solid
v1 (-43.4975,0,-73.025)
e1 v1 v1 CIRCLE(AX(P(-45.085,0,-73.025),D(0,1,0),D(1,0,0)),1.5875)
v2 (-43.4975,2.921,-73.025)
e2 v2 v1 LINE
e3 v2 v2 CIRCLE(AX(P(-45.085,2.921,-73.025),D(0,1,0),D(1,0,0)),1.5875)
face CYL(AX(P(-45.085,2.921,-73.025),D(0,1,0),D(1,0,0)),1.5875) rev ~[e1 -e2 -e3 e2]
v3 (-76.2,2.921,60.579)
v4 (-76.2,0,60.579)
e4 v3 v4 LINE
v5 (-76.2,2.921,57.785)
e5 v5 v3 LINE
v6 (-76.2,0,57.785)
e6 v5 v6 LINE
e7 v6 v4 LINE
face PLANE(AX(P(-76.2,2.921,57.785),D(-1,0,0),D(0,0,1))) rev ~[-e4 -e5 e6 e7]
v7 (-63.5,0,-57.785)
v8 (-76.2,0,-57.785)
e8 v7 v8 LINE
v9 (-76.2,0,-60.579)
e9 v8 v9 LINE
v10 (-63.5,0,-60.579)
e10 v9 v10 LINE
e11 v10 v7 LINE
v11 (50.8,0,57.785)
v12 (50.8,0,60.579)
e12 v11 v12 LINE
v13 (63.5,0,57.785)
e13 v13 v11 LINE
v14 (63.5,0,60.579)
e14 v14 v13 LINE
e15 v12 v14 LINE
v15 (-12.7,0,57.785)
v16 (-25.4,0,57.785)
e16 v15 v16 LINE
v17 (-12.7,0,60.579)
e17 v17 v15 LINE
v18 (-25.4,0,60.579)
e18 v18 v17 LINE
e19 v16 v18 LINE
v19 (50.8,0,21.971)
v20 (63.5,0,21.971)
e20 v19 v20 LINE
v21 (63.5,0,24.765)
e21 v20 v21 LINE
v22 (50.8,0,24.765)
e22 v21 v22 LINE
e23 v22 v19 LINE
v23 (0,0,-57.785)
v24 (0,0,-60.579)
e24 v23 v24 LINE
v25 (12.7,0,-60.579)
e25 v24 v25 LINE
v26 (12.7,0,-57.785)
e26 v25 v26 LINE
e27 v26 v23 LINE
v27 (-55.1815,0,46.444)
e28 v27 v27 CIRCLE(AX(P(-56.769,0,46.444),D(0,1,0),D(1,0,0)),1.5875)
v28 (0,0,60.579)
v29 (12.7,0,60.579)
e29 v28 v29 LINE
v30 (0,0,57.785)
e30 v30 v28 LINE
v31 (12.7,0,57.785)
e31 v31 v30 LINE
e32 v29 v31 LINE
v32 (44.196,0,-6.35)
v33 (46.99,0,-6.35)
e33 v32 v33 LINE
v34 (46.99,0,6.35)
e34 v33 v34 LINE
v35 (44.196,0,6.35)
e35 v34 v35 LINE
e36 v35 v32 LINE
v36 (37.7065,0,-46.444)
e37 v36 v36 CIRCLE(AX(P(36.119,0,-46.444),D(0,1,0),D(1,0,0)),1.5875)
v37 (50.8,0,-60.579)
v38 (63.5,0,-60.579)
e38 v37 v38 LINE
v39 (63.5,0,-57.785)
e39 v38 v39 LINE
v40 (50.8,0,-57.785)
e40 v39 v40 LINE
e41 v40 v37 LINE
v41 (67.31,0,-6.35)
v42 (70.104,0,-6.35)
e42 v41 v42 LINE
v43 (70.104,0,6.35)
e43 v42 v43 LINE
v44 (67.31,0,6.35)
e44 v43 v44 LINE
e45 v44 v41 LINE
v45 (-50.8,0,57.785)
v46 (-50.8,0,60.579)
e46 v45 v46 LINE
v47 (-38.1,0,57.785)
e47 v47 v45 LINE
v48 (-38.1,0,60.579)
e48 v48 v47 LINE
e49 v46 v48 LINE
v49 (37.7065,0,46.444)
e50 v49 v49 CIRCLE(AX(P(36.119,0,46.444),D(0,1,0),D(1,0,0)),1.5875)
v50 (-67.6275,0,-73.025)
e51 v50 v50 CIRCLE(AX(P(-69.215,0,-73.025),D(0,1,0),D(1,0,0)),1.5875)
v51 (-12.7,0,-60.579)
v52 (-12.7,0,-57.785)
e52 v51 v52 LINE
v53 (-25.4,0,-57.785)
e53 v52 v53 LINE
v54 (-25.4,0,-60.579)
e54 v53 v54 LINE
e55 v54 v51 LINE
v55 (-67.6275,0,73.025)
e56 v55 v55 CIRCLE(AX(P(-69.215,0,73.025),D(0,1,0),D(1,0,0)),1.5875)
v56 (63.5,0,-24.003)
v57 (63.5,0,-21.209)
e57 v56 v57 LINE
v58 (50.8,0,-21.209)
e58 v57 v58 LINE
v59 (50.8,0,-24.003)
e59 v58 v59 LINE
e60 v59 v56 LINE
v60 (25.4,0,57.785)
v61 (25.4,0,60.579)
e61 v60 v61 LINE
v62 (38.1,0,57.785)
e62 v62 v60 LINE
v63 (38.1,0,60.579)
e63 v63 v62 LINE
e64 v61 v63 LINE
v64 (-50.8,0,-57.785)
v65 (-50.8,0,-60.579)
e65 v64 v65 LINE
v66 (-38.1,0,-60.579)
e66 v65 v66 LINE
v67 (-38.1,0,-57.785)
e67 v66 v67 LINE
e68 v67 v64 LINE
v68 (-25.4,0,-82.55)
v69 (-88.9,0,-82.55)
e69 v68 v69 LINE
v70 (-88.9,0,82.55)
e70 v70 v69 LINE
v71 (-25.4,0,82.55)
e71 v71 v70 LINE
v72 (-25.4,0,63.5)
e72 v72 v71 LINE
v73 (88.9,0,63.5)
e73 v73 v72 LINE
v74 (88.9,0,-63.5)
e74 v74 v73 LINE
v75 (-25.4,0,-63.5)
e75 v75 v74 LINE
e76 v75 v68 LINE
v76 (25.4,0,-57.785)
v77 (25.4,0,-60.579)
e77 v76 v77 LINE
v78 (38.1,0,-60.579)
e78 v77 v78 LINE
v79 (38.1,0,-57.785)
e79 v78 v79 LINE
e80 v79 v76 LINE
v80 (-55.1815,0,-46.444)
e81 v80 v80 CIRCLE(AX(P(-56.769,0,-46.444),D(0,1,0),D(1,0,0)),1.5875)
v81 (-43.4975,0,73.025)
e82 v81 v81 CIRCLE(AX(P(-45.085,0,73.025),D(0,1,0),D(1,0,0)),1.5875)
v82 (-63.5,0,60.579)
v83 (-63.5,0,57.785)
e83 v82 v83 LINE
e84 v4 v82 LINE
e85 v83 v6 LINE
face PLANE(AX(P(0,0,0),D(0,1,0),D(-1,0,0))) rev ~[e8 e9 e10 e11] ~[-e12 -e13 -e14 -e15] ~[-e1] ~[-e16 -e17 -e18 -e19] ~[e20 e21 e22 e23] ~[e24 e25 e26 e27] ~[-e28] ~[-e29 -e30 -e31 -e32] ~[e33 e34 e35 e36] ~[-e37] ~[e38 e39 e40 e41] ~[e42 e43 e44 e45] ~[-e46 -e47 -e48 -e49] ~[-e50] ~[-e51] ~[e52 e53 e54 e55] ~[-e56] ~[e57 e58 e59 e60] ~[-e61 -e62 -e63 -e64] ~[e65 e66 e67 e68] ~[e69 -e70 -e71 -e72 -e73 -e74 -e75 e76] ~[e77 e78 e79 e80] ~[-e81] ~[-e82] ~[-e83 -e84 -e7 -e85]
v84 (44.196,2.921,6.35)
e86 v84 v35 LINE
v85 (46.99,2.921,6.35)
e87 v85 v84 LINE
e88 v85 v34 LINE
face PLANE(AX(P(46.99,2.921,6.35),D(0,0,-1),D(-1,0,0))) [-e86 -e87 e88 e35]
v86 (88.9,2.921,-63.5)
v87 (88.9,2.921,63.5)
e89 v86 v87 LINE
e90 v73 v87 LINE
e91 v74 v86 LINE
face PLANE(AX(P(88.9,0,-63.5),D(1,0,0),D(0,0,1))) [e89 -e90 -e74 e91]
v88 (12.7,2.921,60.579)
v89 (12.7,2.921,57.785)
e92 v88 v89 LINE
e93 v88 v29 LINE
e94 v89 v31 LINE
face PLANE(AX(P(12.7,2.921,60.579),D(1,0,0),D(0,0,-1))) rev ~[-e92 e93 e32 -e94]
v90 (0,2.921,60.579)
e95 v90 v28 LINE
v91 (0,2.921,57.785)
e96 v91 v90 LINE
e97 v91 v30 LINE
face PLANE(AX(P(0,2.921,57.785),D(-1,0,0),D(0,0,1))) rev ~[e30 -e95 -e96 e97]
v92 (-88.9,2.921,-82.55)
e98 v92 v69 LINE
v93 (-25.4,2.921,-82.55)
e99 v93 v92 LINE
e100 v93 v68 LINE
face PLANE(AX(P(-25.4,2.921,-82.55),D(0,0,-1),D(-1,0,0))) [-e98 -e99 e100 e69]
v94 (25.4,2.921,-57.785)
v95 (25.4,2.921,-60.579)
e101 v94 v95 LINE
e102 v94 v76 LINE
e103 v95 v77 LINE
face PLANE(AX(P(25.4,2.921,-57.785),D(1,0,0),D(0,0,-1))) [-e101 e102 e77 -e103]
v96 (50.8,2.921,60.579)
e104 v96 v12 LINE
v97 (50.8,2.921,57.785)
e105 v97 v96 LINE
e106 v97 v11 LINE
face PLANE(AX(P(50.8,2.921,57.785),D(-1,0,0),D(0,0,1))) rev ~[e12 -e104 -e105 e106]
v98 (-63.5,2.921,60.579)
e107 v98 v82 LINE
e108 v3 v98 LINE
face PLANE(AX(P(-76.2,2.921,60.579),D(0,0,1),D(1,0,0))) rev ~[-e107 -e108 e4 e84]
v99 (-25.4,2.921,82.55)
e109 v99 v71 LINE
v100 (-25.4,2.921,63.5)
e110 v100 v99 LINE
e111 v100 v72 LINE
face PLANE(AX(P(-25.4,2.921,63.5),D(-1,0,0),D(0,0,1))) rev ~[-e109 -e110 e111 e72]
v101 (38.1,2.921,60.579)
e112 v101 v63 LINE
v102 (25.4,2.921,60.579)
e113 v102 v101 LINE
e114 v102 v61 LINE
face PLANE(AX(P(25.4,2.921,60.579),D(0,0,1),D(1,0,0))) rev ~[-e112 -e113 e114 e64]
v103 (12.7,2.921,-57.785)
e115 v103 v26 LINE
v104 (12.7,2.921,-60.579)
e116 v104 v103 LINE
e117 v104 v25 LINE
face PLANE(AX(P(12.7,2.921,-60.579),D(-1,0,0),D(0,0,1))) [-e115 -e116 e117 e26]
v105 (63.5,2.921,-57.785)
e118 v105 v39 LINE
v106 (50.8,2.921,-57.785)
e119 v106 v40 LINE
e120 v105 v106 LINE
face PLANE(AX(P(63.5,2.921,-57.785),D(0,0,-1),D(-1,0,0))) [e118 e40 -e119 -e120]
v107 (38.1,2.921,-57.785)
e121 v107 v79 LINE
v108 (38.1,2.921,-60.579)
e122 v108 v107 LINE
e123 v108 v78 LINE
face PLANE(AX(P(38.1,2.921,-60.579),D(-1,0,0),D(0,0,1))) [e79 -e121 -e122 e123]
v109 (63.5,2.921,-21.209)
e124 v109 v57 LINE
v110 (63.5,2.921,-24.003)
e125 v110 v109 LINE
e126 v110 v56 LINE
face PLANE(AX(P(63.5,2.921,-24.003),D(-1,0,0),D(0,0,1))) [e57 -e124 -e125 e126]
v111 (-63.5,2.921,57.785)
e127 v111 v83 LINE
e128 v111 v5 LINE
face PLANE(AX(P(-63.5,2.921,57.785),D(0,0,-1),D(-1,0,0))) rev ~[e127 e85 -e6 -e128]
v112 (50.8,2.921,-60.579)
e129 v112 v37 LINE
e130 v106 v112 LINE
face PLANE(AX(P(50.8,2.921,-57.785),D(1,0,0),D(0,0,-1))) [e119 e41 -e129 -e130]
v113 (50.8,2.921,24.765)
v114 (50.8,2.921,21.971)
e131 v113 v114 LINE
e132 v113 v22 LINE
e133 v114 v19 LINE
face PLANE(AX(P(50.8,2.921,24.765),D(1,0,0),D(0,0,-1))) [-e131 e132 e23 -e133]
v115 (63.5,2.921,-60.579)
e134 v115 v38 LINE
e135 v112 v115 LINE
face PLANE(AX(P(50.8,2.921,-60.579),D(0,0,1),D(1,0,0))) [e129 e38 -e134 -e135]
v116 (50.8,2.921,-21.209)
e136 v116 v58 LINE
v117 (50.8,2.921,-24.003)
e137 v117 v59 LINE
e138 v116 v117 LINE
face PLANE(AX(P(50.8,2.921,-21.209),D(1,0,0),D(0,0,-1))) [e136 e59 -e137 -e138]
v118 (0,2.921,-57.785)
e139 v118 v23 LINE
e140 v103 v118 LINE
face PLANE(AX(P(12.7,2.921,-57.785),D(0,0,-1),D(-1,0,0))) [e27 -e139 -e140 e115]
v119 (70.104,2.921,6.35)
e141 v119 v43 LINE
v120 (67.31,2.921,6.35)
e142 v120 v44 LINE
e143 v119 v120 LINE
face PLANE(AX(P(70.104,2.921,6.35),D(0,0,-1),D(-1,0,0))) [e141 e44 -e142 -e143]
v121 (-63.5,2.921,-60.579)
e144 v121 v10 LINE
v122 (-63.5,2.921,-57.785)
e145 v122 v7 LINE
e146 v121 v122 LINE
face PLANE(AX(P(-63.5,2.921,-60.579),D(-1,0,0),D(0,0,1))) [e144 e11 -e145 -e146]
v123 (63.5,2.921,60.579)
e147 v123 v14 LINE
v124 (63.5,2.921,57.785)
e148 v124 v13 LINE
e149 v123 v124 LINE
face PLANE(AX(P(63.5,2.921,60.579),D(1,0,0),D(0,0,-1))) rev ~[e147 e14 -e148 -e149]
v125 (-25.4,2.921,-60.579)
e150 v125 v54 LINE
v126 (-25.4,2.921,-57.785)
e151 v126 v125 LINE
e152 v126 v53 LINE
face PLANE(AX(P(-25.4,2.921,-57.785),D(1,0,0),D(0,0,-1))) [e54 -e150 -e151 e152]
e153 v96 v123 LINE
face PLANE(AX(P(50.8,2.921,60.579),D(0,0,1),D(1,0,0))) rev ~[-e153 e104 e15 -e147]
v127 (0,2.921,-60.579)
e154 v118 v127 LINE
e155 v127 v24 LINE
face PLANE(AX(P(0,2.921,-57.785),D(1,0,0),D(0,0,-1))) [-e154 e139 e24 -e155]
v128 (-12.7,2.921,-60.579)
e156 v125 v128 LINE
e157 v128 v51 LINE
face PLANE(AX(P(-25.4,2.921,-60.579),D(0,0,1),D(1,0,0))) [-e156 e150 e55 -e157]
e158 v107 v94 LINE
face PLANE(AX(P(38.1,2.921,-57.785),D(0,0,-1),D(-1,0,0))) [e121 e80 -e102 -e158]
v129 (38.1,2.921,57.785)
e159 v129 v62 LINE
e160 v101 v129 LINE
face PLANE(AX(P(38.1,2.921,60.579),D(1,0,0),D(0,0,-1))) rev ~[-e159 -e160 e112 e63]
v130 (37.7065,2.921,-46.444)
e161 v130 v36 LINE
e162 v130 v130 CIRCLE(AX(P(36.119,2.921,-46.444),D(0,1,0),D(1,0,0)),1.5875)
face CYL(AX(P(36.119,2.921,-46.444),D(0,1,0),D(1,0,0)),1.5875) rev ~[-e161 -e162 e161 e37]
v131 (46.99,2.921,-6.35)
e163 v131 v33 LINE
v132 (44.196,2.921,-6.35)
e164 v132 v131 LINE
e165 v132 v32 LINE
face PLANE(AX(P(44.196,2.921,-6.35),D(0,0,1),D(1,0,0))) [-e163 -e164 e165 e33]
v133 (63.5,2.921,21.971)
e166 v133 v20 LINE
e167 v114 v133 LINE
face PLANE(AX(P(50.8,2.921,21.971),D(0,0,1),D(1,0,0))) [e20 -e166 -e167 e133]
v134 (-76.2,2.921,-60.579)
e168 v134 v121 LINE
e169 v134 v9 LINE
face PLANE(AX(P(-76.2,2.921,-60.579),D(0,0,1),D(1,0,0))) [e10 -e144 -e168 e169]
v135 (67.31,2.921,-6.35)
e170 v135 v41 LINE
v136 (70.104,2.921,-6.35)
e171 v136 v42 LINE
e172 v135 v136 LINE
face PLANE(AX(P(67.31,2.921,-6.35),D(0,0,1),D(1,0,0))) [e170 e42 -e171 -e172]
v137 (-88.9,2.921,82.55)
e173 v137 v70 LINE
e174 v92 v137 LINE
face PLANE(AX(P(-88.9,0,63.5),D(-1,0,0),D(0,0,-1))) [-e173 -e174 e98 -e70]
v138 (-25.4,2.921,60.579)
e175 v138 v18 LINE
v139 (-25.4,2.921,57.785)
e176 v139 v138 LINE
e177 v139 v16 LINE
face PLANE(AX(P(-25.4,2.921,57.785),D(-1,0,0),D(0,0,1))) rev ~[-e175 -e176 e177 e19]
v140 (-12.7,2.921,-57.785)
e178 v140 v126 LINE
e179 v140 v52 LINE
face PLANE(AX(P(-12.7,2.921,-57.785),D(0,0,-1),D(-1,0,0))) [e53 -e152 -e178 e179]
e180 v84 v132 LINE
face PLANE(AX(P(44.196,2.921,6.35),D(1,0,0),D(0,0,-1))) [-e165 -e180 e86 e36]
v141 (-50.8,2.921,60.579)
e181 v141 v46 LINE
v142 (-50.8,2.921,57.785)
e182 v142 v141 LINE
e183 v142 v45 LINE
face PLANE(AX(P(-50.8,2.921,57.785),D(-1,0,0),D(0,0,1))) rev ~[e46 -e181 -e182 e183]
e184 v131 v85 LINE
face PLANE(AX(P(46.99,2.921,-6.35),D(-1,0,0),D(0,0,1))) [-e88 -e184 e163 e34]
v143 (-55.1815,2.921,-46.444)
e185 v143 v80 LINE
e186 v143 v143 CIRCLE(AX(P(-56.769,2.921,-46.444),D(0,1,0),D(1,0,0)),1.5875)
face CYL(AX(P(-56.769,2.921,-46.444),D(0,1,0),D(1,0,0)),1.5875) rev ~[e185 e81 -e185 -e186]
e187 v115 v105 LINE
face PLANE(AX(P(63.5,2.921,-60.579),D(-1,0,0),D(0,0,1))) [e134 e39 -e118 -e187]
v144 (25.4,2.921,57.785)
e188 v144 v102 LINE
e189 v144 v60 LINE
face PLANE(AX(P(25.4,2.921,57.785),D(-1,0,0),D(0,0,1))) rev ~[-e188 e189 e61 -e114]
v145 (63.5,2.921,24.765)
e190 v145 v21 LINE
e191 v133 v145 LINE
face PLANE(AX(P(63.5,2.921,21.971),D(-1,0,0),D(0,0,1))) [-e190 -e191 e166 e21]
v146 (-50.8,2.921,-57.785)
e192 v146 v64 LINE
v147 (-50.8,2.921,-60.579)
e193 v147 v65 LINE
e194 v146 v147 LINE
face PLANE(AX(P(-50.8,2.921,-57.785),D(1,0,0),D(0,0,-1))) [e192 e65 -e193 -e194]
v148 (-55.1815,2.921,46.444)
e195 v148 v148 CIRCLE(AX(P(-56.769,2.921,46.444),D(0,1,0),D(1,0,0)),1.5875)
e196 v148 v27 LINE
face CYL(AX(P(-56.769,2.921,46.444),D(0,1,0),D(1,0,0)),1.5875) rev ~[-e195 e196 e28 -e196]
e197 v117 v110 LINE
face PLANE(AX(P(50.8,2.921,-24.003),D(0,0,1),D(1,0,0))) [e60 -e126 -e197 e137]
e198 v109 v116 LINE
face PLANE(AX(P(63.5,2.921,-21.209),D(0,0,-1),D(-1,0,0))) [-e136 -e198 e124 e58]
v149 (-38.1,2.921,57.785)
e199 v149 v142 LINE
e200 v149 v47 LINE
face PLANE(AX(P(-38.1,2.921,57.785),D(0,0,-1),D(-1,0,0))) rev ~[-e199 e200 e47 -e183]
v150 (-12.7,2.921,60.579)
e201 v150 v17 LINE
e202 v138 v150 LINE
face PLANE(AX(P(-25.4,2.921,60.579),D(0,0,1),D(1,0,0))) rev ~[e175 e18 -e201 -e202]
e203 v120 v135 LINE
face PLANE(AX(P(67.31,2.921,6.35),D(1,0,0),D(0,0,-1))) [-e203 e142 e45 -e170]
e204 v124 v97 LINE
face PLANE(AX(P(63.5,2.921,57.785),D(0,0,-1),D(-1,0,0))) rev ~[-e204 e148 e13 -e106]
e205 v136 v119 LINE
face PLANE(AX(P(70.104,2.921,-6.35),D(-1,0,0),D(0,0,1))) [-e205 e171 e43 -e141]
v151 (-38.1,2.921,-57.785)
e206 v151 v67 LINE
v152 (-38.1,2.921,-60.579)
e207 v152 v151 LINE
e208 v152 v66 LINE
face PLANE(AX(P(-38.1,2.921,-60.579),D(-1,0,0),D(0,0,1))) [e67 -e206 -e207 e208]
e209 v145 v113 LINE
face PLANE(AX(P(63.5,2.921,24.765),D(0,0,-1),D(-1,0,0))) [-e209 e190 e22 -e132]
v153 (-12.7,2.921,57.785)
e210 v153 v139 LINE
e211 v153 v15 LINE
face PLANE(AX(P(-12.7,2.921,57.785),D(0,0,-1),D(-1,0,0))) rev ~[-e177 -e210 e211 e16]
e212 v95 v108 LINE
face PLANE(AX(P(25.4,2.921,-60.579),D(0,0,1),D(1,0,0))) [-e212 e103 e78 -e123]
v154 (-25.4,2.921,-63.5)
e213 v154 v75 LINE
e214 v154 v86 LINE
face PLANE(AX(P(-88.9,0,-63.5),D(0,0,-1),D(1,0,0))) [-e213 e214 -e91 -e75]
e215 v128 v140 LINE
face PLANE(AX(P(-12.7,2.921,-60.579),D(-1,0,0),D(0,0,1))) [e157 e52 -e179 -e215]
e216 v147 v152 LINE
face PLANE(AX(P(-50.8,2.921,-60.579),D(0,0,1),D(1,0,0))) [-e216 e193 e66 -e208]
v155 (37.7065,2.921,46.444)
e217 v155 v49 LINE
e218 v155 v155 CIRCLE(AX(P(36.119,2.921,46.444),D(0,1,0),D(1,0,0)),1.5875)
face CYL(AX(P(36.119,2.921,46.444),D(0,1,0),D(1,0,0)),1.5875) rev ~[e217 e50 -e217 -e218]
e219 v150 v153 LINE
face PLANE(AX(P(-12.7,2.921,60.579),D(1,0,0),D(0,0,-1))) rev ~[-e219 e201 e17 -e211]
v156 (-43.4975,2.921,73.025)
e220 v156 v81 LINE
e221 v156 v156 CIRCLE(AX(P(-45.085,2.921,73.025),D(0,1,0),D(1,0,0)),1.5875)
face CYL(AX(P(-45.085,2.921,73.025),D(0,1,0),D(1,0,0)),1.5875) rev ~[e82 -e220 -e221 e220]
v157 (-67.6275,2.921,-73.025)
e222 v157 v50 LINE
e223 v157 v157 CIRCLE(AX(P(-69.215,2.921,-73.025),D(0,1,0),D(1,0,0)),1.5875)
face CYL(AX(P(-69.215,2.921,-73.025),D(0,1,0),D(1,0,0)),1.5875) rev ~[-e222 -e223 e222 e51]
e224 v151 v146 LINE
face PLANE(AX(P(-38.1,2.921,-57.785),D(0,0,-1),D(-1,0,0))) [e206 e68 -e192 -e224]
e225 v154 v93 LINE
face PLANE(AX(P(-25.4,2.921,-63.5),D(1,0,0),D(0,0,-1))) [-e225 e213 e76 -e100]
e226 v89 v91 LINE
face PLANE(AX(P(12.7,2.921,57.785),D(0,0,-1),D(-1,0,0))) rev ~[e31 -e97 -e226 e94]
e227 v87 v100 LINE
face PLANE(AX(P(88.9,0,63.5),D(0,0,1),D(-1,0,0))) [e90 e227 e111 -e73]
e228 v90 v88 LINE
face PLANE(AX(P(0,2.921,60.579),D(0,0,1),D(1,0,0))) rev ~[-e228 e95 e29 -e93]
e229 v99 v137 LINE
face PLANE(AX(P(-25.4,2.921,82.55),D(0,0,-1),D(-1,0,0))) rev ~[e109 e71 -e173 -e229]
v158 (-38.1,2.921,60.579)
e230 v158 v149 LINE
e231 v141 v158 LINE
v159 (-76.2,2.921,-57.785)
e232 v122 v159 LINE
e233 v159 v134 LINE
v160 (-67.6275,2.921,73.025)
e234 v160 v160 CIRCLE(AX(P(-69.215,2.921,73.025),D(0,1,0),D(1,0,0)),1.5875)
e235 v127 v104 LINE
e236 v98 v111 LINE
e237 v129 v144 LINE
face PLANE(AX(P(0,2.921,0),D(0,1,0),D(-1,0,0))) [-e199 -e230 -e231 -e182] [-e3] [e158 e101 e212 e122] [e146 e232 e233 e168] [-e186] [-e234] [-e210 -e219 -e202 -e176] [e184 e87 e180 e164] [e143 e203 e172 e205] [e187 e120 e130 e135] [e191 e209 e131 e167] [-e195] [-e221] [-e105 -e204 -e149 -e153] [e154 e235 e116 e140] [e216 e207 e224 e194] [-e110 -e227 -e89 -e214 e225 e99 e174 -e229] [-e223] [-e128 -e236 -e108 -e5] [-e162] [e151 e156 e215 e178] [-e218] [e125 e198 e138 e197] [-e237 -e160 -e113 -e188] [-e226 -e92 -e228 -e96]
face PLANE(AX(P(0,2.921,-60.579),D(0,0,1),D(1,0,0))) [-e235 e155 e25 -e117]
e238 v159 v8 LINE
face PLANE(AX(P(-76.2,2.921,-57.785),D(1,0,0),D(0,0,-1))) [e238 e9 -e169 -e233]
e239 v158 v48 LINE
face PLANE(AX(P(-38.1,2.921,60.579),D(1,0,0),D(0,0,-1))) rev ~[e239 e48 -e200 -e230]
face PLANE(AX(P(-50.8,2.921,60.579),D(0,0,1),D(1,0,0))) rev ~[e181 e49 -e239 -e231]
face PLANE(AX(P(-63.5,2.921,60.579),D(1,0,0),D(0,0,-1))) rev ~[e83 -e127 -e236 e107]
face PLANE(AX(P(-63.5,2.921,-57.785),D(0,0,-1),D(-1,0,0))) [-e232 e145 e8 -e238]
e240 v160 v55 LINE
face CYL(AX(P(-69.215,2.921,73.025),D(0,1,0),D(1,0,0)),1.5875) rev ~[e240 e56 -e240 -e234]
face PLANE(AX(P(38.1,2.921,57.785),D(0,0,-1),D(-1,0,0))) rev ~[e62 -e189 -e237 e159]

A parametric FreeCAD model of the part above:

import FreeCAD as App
import Part
import Sketcher

V = App.Vector
Q = App.Units.Quantity

doc = App.newDocument("Part")
body = doc.addObject("PartDesign::Body", "Body")

sketch1 = doc.addObject("Sketcher::SketchObject", "Sketch")
body.addObject(sketch1)
sketch1.AttachmentSupport = (doc.XZ_Plane, [""])
sketch1.MapMode = "FlatFace"
sketch1.addGeometry(Part.LineSegment(V(-89, 64, 0), V(89, 64, 0)), False)
sketch1.addGeometry(Part.LineSegment(V(89, 64, 0), V(89, -64, 0)), False)
sketch1.addGeometry(Part.LineSegment(V(89, -64, 0), V(-89, -64, 0)), False)
sketch1.addGeometry(Part.LineSegment(V(-89, -64, 0), V(-89, 64, 0)), False)
sketch1.addConstraint(Sketcher.Constraint("Coincident", 0, 2, 1, 1))
sketch1.addConstraint(Sketcher.Constraint("Coincident", 1, 2, 2, 1))
sketch1.addConstraint(Sketcher.Constraint("Coincident", 2, 2, 3, 1))
sketch1.addConstraint(Sketcher.Constraint("Coincident", 3, 2, 0, 1))
sketch1.addConstraint(Sketcher.Constraint("Horizontal", 0))
sketch1.addConstraint(Sketcher.Constraint("Vertical", 1))
sketch1.addConstraint(Sketcher.Constraint("Horizontal", 2))
sketch1.addConstraint(Sketcher.Constraint("Vertical", 3))
sketch1.addConstraint(Sketcher.Constraint("Symmetric", 0, 2, 2, 2, -1, 1))
sketch1.addConstraint(Sketcher.Constraint("DistanceX", 0, 1, 0, 2, Q("7 in")))
sketch1.addConstraint(Sketcher.Constraint("DistanceY", 1, 2, 1, 1, Q("5 in")))
pad1 = doc.addObject("PartDesign::Pad", "Pad")
body.addObject(pad1)
pad1.Profile = sketch1
pad1.Length = Q("0.115 in")
pad1.Reversed = True

sketch2 = doc.addObject("Sketcher::SketchObject", "Sketch001")
body.addObject(sketch2)
sketch2.AttachmentSupport = (doc.XZ_Plane, [""])
sketch2.MapMode = "FlatFace"
sketch2.AttachmentOffset = App.Placement(V(0, 0, -0.115 * 25.4), App.Rotation())
sketch2.addGeometry(Part.Circle(V(36.1, 46.4, 0), V(0, 0, 1), 1.6), False)
sketch2.addGeometry(Part.Circle(V(-56.8, 46.4, 0), V(0, 0, 1), 1.6), False)
sketch2.addGeometry(Part.Circle(V(-56.8, -46.4, 0), V(0, 0, 1), 1.6), False)
sketch2.addGeometry(Part.Circle(V(36.1, -46.4, 0), V(0, 0, 1), 1.6), False)
sketch2.addConstraint(Sketcher.Constraint("Equal", 0, 1))
sketch2.addConstraint(Sketcher.Constraint("Equal", 1, 2))
sketch2.addConstraint(Sketcher.Constraint("Equal", 2, 3))
sketch2.addConstraint(Sketcher.Constraint("Symmetric", 1, 3, 2, 3, -1))
sketch2.addConstraint(Sketcher.Constraint("Symmetric", 0, 3, 3, 3, -1))
sketch2.addConstraint(Sketcher.Constraint("Horizontal", 0, 3, 1, 3))
sketch2.addConstraint(Sketcher.Constraint("Diameter", 0, Q("0.125 in")))
sketch2.addConstraint(Sketcher.Constraint("DistanceX", -1, 1, 0, 3, Q("1.422 in")))
sketch2.addConstraint(Sketcher.Constraint("DistanceX", 1, 3, -1, 1, Q("2.235 in")))
sketch2.addConstraint(Sketcher.Constraint("DistanceY", 2, 3, 1, 3, Q("3.657 in")))
pocket1 = doc.addObject("PartDesign::Pocket", "Pocket")
body.addObject(pocket1)
pocket1.Profile = sketch2
pocket1.Length = Q("1 in")
pocket1.Reversed = True

sketch3 = doc.addObject("Sketcher::SketchObject", "Sketch002")
body.addObject(sketch3)
sketch3.AttachmentSupport = (doc.XZ_Plane, [""])
sketch3.MapMode = "FlatFace"
sketch3.AttachmentOffset = App.Placement(V(0, 0, -0.115 * 25.4), App.Rotation())
sketch3.addGeometry(Part.LineSegment(V(-76.2, 57.8, 0), V(-76.2, 60.6, 0)), False)
sketch3.addGeometry(Part.LineSegment(V(-76.2, 60.6, 0), V(-63.5, 60.6, 0)), False)
sketch3.addGeometry(Part.LineSegment(V(-63.5, 60.6, 0), V(-63.5, 57.8, 0)), False)
sketch3.addGeometry(Part.LineSegment(V(-63.5, 57.8, 0), V(-76.2, 57.8, 0)), False)
sketch3.addGeometry(Part.LineSegment(V(-63.5, -60.6, 0), V(-76.2, -60.6, 0)), False)
sketch3.addGeometry(Part.LineSegment(V(-76.2, -60.6, 0), V(-76.2, -57.8, 0)), False)
sketch3.addGeometry(Part.LineSegment(V(-76.2, -57.8, 0), V(-63.5, -57.8, 0)), False)
sketch3.addGeometry(Part.LineSegment(V(-63.5, -57.8, 0), V(-63.5, -60.6, 0)), False)
sketch3.addGeometry(Part.LineSegment(V(-50.8, 57.8, 0), V(-50.8, 60.6, 0)), False)
sketch3.addGeometry(Part.LineSegment(V(-50.8, 60.6, 0), V(-38.1, 60.6, 0)), False)
sketch3.addGeometry(Part.LineSegment(V(-38.1, 60.6, 0), V(-38.1, 57.8, 0)), False)
sketch3.addGeometry(Part.LineSegment(V(-38.1, 57.8, 0), V(-50.8, 57.8, 0)), False)
sketch3.addGeometry(Part.LineSegment(V(-38.1, -60.6, 0), V(-50.8, -60.6, 0)), False)
sketch3.addGeometry(Part.LineSegment(V(-50.8, -60.6, 0), V(-50.8, -57.8, 0)), False)
sketch3.addGeometry(Part.LineSegment(V(-50.8, -57.8, 0), V(-38.1, -57.8, 0)), False)
sketch3.addGeometry(Part.LineSegment(V(-38.1, -57.8, 0), V(-38.1, -60.6, 0)), False)
sketch3.addGeometry(Part.LineSegment(V(-25.4, 57.8, 0), V(-25.4, 60.6, 0)), False)
sketch3.addGeometry(Part.LineSegment(V(-25.4, 60.6, 0), V(-12.7, 60.6, 0)), False)
sketch3.addGeometry(Part.LineSegment(V(-12.7, 60.6, 0), V(-12.7, 57.8, 0)), False)
sketch3.addGeometry(Part.LineSegment(V(-12.7, 57.8, 0), V(-25.4, 57.8, 0)), False)
sketch3.addGeometry(Part.LineSegment(V(-12.7, -60.6, 0), V(-25.4, -60.6, 0)), False)
sketch3.addGeometry(Part.LineSegment(V(-25.4, -60.6, 0), V(-25.4, -57.8, 0)), False)
sketch3.addGeometry(Part.LineSegment(V(-25.4, -57.8, 0), V(-12.7, -57.8, 0)), False)
sketch3.addGeometry(Part.LineSegment(V(-12.7, -57.8, 0), V(-12.7, -60.6, 0)), False)
sketch3.addGeometry(Part.LineSegment(V(0, 57.8, 0), V(0, 60.6, 0)), False)
sketch3.addGeometry(Part.LineSegment(V(0, 60.6, 0), V(12.7, 60.6, 0)), False)
sketch3.addGeometry(Part.LineSegment(V(12.7, 60.6, 0), V(12.7, 57.8, 0)), False)
sketch3.addGeometry(Part.LineSegment(V(12.7, 57.8, 0), V(0, 57.8, 0)), False)
sketch3.addGeometry(Part.LineSegment(V(12.7, -60.6, 0), V(0, -60.6, 0)), False)
sketch3.addGeometry(Part.LineSegment(V(0, -60.6, 0), V(0, -57.8, 0)), False)
sketch3.addGeometry(Part.LineSegment(V(0, -57.8, 0), V(12.7, -57.8, 0)), False)
sketch3.addGeometry(Part.LineSegment(V(12.7, -57.8, 0), V(12.7, -60.6, 0)), False)
sketch3.addGeometry(Part.LineSegment(V(25.4, 57.8, 0), V(25.4, 60.6, 0)), False)
sketch3.addGeometry(Part.LineSegment(V(25.4, 60.6, 0), V(38.1, 60.6, 0)), False)
sketch3.addGeometry(Part.LineSegment(V(38.1, 60.6, 0), V(38.1, 57.8, 0)), False)
sketch3.addGeometry(Part.LineSegment(V(38.1, 57.8, 0), V(25.4, 57.8, 0)), False)
sketch3.addGeometry(Part.LineSegment(V(38.1, -60.6, 0), V(25.4, -60.6, 0)), False)
sketch3.addGeometry(Part.LineSegment(V(25.4, -60.6, 0), V(25.4, -57.8, 0)), False)
sketch3.addGeometry(Part.LineSegment(V(25.4, -57.8, 0), V(38.1, -57.8, 0)), False)
sketch3.addGeometry(Part.LineSegment(V(38.1, -57.8, 0), V(38.1, -60.6, 0)), False)
sketch3.addGeometry(Part.LineSegment(V(50.8, 57.8, 0), V(50.8, 60.6, 0)), False)
sketch3.addGeometry(Part.LineSegment(V(50.8, 60.6, 0), V(63.5, 60.6, 0)), False)
sketch3.addGeometry(Part.LineSegment(V(63.5, 60.6, 0), V(63.5, 57.8, 0)), False)
sketch3.addGeometry(Part.LineSegment(V(63.5, 57.8, 0), V(50.8, 57.8, 0)), False)
sketch3.addGeometry(Part.LineSegment(V(63.5, -60.6, 0), V(50.8, -60.6, 0)), False)
sketch3.addGeometry(Part.LineSegment(V(50.8, -60.6, 0), V(50.8, -57.8, 0)), False)
sketch3.addGeometry(Part.LineSegment(V(50.8, -57.8, 0), V(63.5, -57.8, 0)), False)
sketch3.addGeometry(Part.LineSegment(V(63.5, -57.8, 0), V(63.5, -60.6, 0)), False)
sketch3.addConstraint(Sketcher.Constraint("Coincident", 0, 2, 1, 1))
sketch3.addConstraint(Sketcher.Constraint("Coincident", 1, 2, 2, 1))
sketch3.addConstraint(Sketcher.Constraint("Coincident", 2, 2, 3, 1))
sketch3.addConstraint(Sketcher.Constraint("Coincident", 3, 2, 0, 1))
sketch3.addConstraint(Sketcher.Constraint("Coincident", 4, 2, 5, 1))
sketch3.addConstraint(Sketcher.Constraint("Coincident", 5, 2, 6, 1))
sketch3.addConstraint(Sketcher.Constraint("Coincident", 6, 2, 7, 1))
sketch3.addConstraint(Sketcher.Constraint("Coincident", 7, 2, 4, 1))
sketch3.addConstraint(Sketcher.Constraint("Coincident", 8, 2, 9, 1))
sketch3.addConstraint(Sketcher.Constraint("Coincident", 9, 2, 10, 1))
sketch3.addConstraint(Sketcher.Constraint("Coincident", 10, 2, 11, 1))
sketch3.addConstraint(Sketcher.Constraint("Coincident", 11, 2, 8, 1))
sketch3.addConstraint(Sketcher.Constraint("Coincident", 12, 2, 13, 1))
sketch3.addConstraint(Sketcher.Constraint("Coincident", 13, 2, 14, 1))
sketch3.addConstraint(Sketcher.Constraint("Coincident", 14, 2, 15, 1))
sketch3.addConstraint(Sketcher.Constraint("Coincident", 15, 2, 12, 1))
sketch3.addConstraint(Sketcher.Constraint("Coincident", 16, 2, 17, 1))
sketch3.addConstraint(Sketcher.Constraint("Coincident", 17, 2, 18, 1))
sketch3.addConstraint(Sketcher.Constraint("Coincident", 18, 2, 19, 1))
sketch3.addConstraint(Sketcher.Constraint("Coincident", 19, 2, 16, 1))
sketch3.addConstraint(Sketcher.Constraint("Coincident", 20, 2, 21, 1))
sketch3.addConstraint(Sketcher.Constraint("Coincident", 21, 2, 22, 1))
sketch3.addConstraint(Sketcher.Constraint("Coincident", 22, 2, 23, 1))
sketch3.addConstraint(Sketcher.Constraint("Coincident", 23, 2, 20, 1))
sketch3.addConstraint(Sketcher.Constraint("Coincident", 24, 2, 25, 1))
sketch3.addConstraint(Sketcher.Constraint("Coincident", 25, 2, 26, 1))
sketch3.addConstraint(Sketcher.Constraint("Coincident", 26, 2, 27, 1))
sketch3.addConstraint(Sketcher.Constraint("Coincident", 27, 2, 24, 1))
sketch3.addConstraint(Sketcher.Constraint("Coincident", 28, 2, 29, 1))
sketch3.addConstraint(Sketcher.Constraint("Coincident", 29, 2, 30, 1))
sketch3.addConstraint(Sketcher.Constraint("Coincident", 30, 2, 31, 1))
sketch3.addConstraint(Sketcher.Constraint("Coincident", 31, 2, 28, 1))
sketch3.addConstraint(Sketcher.Constraint("Coincident", 32, 2, 33, 1))
sketch3.addConstraint(Sketcher.Constraint("Coincident", 33, 2, 34, 1))
sketch3.addConstraint(Sketcher.Constraint("Coincident", 34, 2, 35, 1))
sketch3.addConstraint(Sketcher.Constraint("Coincident", 35, 2, 32, 1))
sketch3.addConstraint(Sketcher.Constraint("Coincident", 36, 2, 37, 1))
sketch3.addConstraint(Sketcher.Constraint("Coincident", 37, 2, 38, 1))
sketch3.addConstraint(Sketcher.Constraint("Coincident", 38, 2, 39, 1))
sketch3.addConstraint(Sketcher.Constraint("Coincident", 39, 2, 36, 1))
sketch3.addConstraint(Sketcher.Constraint("Coincident", 40, 2, 41, 1))
sketch3.addConstraint(Sketcher.Constraint("Coincident", 41, 2, 42, 1))
sketch3.addConstraint(Sketcher.Constraint("Coincident", 42, 2, 43, 1))
sketch3.addConstraint(Sketcher.Constraint("Coincident", 43, 2, 40, 1))
sketch3.addConstraint(Sketcher.Constraint("Coincident", 44, 2, 45, 1))
sketch3.addConstraint(Sketcher.Constraint("Coincident", 45, 2, 46, 1))
sketch3.addConstraint(Sketcher.Constraint("Coincident", 46, 2, 47, 1))
sketch3.addConstraint(Sketcher.Constraint("Coincident", 47, 2, 44, 1))
sketch3.addConstraint(Sketcher.Constraint("Vertical", 0))
sketch3.addConstraint(Sketcher.Constraint("Horizontal", 1))
sketch3.addConstraint(Sketcher.Constraint("Vertical", 2))
sketch3.addConstraint(Sketcher.Constraint("Horizontal", 3))
sketch3.addConstraint(Sketcher.Constraint("Horizontal", 4))
sketch3.addConstraint(Sketcher.Constraint("Vertical", 5))
sketch3.addConstraint(Sketcher.Constraint("Horizontal", 6))
sketch3.addConstraint(Sketcher.Constraint("Vertical", 7))
sketch3.addConstraint(Sketcher.Constraint("Vertical", 8))
sketch3.addConstraint(Sketcher.Constraint("Horizontal", 9))
sketch3.addConstraint(Sketcher.Constraint("Vertical", 10))
sketch3.addConstraint(Sketcher.Constraint("Horizontal", 11))
sketch3.addConstraint(Sketcher.Constraint("Horizontal", 12))
sketch3.addConstraint(Sketcher.Constraint("Vertical", 13))
sketch3.addConstraint(Sketcher.Constraint("Horizontal", 14))
sketch3.addConstraint(Sketcher.Constraint("Vertical", 15))
sketch3.addConstraint(Sketcher.Constraint("Vertical", 16))
sketch3.addConstraint(Sketcher.Constraint("Horizontal", 17))
sketch3.addConstraint(Sketcher.Constraint("Vertical", 18))
sketch3.addConstraint(Sketcher.Constraint("Horizontal", 19))
sketch3.addConstraint(Sketcher.Constraint("Horizontal", 20))
sketch3.addConstraint(Sketcher.Constraint("Vertical", 21))
sketch3.addConstraint(Sketcher.Constraint("Horizontal", 22))
sketch3.addConstraint(Sketcher.Constraint("Vertical", 23))
sketch3.addConstraint(Sketcher.Constraint("Vertical", 24))
sketch3.addConstraint(Sketcher.Constraint("Horizontal", 25))
sketch3.addConstraint(Sketcher.Constraint("Vertical", 26))
sketch3.addConstraint(Sketcher.Constraint("Horizontal", 27))
sketch3.addConstraint(Sketcher.Constraint("Horizontal", 28))
sketch3.addConstraint(Sketcher.Constraint("Vertical", 29))
sketch3.addConstraint(Sketcher.Constraint("Horizontal", 30))
sketch3.addConstraint(Sketcher.Constraint("Vertical", 31))
sketch3.addConstraint(Sketcher.Constraint("Vertical", 32))
sketch3.addConstraint(Sketcher.Constraint("Horizontal", 33))
sketch3.addConstraint(Sketcher.Constraint("Vertical", 34))
sketch3.addConstraint(Sketcher.Constraint("Horizontal", 35))
sketch3.addConstraint(Sketcher.Constraint("Horizontal", 36))
sketch3.addConstraint(Sketcher.Constraint("Vertical", 37))
sketch3.addConstraint(Sketcher.Constraint("Horizontal", 38))
sketch3.addConstraint(Sketcher.Constraint("Vertical", 39))
sketch3.addConstraint(Sketcher.Constraint("Vertical", 40))
sketch3.addConstraint(Sketcher.Constraint("Horizontal", 41))
sketch3.addConstraint(Sketcher.Constraint("Vertical", 42))
sketch3.addConstraint(Sketcher.Constraint("Horizontal", 43))
sketch3.addConstraint(Sketcher.Constraint("Horizontal", 44))
sketch3.addConstraint(Sketcher.Constraint("Vertical", 45))
sketch3.addConstraint(Sketcher.Constraint("Horizontal", 46))
sketch3.addConstraint(Sketcher.Constraint("Vertical", 47))
sketch3.addConstraint(Sketcher.Constraint("Symmetric", 23, 2, 25, 2, -1, 1))
sketch3.addConstraint(Sketcher.Constraint("Symmetric", 24, 2, 28, 2, -1, 1))
sketch3.addConstraint(Sketcher.Constraint("Symmetric", 18, 2, 30, 2, -1, 1))
sketch3.addConstraint(Sketcher.Constraint("Symmetric", 20, 2, 32, 2, -1, 1))
sketch3.addConstraint(Sketcher.Constraint("Symmetric", 15, 2, 33, 2, -1, 1))
sketch3.addConstraint(Sketcher.Constraint("Symmetric", 16, 2, 36, 2, -1, 1))
sketch3.addConstraint(Sketcher.Constraint("Symmetric", 10, 2, 38, 2, -1, 1))
sketch3.addConstraint(Sketcher.Constraint("Symmetric", 12, 2, 40, 2, -1, 1))
sketch3.addConstraint(Sketcher.Constraint("Symmetric", 7, 2, 41, 2, -1, 1))
sketch3.addConstraint(Sketcher.Constraint("Symmetric", 8, 2, 44, 2, -1, 1))
sketch3.addConstraint(Sketcher.Constraint("Symmetric", 2, 2, 46, 2, -1, 1))
sketch3.addConstraint(Sketcher.Constraint("Symmetric", 17, 2, 25, 2, -2))
sketch3.addConstraint(Sketcher.Constraint("Symmetric", 9, 2, 33, 2, -2))
sketch3.addConstraint(Sketcher.Constraint("Symmetric", 19, 2, 35, 2, -2))
sketch3.addConstraint(Sketcher.Constraint("Symmetric", 1, 2, 41, 2, -2))
sketch3.addConstraint(Sketcher.Constraint("Symmetric", 11, 2, 43, 2, -2))
sketch3.addConstraint(Sketcher.Constraint("Symmetric", 3, 2, 5, 2, -1))
sketch3.addConstraint(Sketcher.Constraint("Symmetric", 27, 2, 29, 2, -1))
sketch3.addConstraint(Sketcher.Constraint("Horizontal", 3, 2, 10, 2))
sketch3.addConstraint(Sketcher.Constraint("Horizontal", 6, 2, 13, 2))
sketch3.addConstraint(Sketcher.Constraint("Horizontal", 11, 2, 18, 2))
sketch3.addConstraint(Sketcher.Constraint("Horizontal", 14, 2, 21, 2))
sketch3.addConstraint(Sketcher.Constraint("Equal", 6, 9))
sketch3.addConstraint(Sketcher.Constraint("Equal", 14, 17))
sketch3.addConstraint(Sketcher.Constraint("Equal", 22, 25))
sketch3.addConstraint(Sketcher.Constraint("Equal", 30, 33))
sketch3.addConstraint(Sketcher.Constraint("Equal", 38, 41))
sketch3.addConstraint(Sketcher.Constraint("DistanceX", 1, 1, 1, 2, Q("0.5 in")))
sketch3.addConstraint(Sketcher.Constraint("DistanceY", 0, 1, 0, 2, Q("0.11 in")))
sketch3.addConstraint(Sketcher.Constraint("DistanceY", 4, 2, 3, 2, Q("4.66 in")))
pocket2 = doc.addObject("PartDesign::Pocket", "Pocket001")
body.addObject(pocket2)
pocket2.Profile = sketch3
pocket2.Length = Q("1 in")
pocket2.Reversed = True

sketch4 = doc.addObject("Sketcher::SketchObject", "Sketch003")
body.addObject(sketch4)
sketch4.AttachmentSupport = (doc.XZ_Plane, [""])
sketch4.MapMode = "FlatFace"
sketch4.AttachmentOffset = App.Placement(V(0, 0, -0.115 * 25.4), App.Rotation())
sketch4.addGeometry(Part.LineSegment(V(-89, -83, 0), V(-89, -64, 0)), False)
sketch4.addGeometry(Part.LineSegment(V(-89, -64, 0), V(-25, -64, 0)), False)
sketch4.addGeometry(Part.LineSegment(V(-25, -64, 0), V(-25, -83, 0)), False)
sketch4.addGeometry(Part.LineSegment(V(-25, -83, 0), V(-89, -83, 0)), False)
sketch4.addGeometry(Part.LineSegment(V(-25, 64, 0), V(-89, 64, 0)), False)
sketch4.addGeometry(Part.LineSegment(V(-89, 64, 0), V(-89, 83, 0)), False)
sketch4.addGeometry(Part.LineSegment(V(-89, 83, 0), V(-25, 83, 0)), False)
sketch4.addGeometry(Part.LineSegment(V(-25, 83, 0), V(-25, 64, 0)), False)
sketch4.addConstraint(Sketcher.Constraint("Coincident", 0, 2, 1, 1))
sketch4.addConstraint(Sketcher.Constraint("Coincident", 1, 2, 2, 1))
sketch4.addConstraint(Sketcher.Constraint("Coincident", 2, 2, 3, 1))
sketch4.addConstraint(Sketcher.Constraint("Coincident", 3, 2, 0, 1))
sketch4.addConstraint(Sketcher.Constraint("Coincident", 4, 2, 5, 1))
sketch4.addConstraint(Sketcher.Constraint("Coincident", 5, 2, 6, 1))
sketch4.addConstraint(Sketcher.Constraint("Coincident", 6, 2, 7, 1))
sketch4.addConstraint(Sketcher.Constraint("Coincident", 7, 2, 4, 1))
sketch4.addConstraint(Sketcher.Constraint("Vertical", 0))
sketch4.addConstraint(Sketcher.Constraint("Horizontal", 1))
sketch4.addConstraint(Sketcher.Constraint("Vertical", 2))
sketch4.addConstraint(Sketcher.Constraint("Horizontal", 3))
sketch4.addConstraint(Sketcher.Constraint("Horizontal", 4))
sketch4.addConstraint(Sketcher.Constraint("Vertical", 5))
sketch4.addConstraint(Sketcher.Constraint("Horizontal", 6))
sketch4.addConstraint(Sketcher.Constraint("Vertical", 7))
sketch4.addConstraint(Sketcher.Constraint("Symmetric", 0, 2, 4, 2, -1))
sketch4.addConstraint(Sketcher.Constraint("Symmetric", 2, 2, 6, 2, -1))
sketch4.addConstraint(Sketcher.Constraint("DistanceX", 1, 1, 1, 2, Q("2.5 in")))
sketch4.addConstraint(Sketcher.Constraint("DistanceY", 0, 1, 0, 2, Q("0.75 in")))
sketch4.addConstraint(Sketcher.Constraint("DistanceY", 0, 2, -1, 1, Q("2.5 in")))
sketch4.addConstraint(Sketcher.Constraint("DistanceX", 1, 2, -1, 1, Q("1 in")))
pad2 = doc.addObject("PartDesign::Pad", "Pad001")
body.addObject(pad2)
pad2.Profile = sketch4
pad2.Length = Q("0.115 in")

sketch5 = doc.addObject("Sketcher::SketchObject", "Sketch004")
body.addObject(sketch5)
sketch5.AttachmentSupport = (doc.XZ_Plane, [""])
sketch5.MapMode = "FlatFace"
sketch5.AttachmentOffset = App.Placement(V(0, 0, -0.115 * 25.4), App.Rotation())
sketch5.addGeometry(Part.Circle(V(-69.2, -73, 0), V(0, 0, 1), 1.6), False)
sketch5.addGeometry(Part.Circle(V(-69.2, 73, 0), V(0, 0, 1), 1.6), False)
sketch5.addGeometry(Part.Circle(V(-45.1, 73, 0), V(0, 0, 1), 1.6), False)
sketch5.addGeometry(Part.Circle(V(-45.1, -73, 0), V(0, 0, 1), 1.6), False)
sketch5.addConstraint(Sketcher.Constraint("Equal", 0, 1))
sketch5.addConstraint(Sketcher.Constraint("Equal", 1, 2))
sketch5.addConstraint(Sketcher.Constraint("Equal", 2, 3))
sketch5.addConstraint(Sketcher.Constraint("Symmetric", 0, 3, 1, 3, -1))
sketch5.addConstraint(Sketcher.Constraint("Symmetric", 2, 3, 3, 3, -1))
sketch5.addConstraint(Sketcher.Constraint("Horizontal", 1, 3, 2, 3))
sketch5.addConstraint(Sketcher.Constraint("Diameter", 0, Q("0.125 in")))
sketch5.addConstraint(Sketcher.Constraint("DistanceX", 1, 3, 2, 3, Q("0.95 in")))
sketch5.addConstraint(Sketcher.Constraint("DistanceY", 0, 3, 1, 3, Q("5.75 in")))
sketch5.addConstraint(Sketcher.Constraint("DistanceX", 0, 3, -1, 1, Q("2.725 in")))
pocket3 = doc.addObject("PartDesign::Pocket", "Pocket002")
body.addObject(pocket3)
pocket3.Profile = sketch5
pocket3.Length = Q("0.115 in")
pocket3.Reversed = True

sketch6 = doc.addObject("Sketcher::SketchObject", "Sketch005")
body.addObject(sketch6)
sketch6.AttachmentSupport = (doc.XZ_Plane, [""])
sketch6.MapMode = "FlatFace"
sketch6.AttachmentOffset = App.Placement(V(0, 0, -0.115 * 25.4), App.Rotation())
sketch6.addGeometry(Part.LineSegment(V(63.5, -24, 0), V(50.8, -24, 0)), False)
sketch6.addGeometry(Part.LineSegment(V(50.8, -24, 0), V(50.8, -21.2, 0)), False)
sketch6.addGeometry(Part.LineSegment(V(50.8, -21.2, 0), V(63.5, -21.2, 0)), False)
sketch6.addGeometry(Part.LineSegment(V(63.5, -21.2, 0), V(63.5, -24, 0)), False)
sketch6.addGeometry(Part.LineSegment(V(63.5, 22, 0), V(50.8, 22, 0)), False)
sketch6.addGeometry(Part.LineSegment(V(50.8, 22, 0), V(50.8, 24.8, 0)), False)
sketch6.addGeometry(Part.LineSegment(V(50.8, 24.8, 0), V(63.5, 24.8, 0)), False)
sketch6.addGeometry(Part.LineSegment(V(63.5, 24.8, 0), V(63.5, 22, 0)), False)
sketch6.addGeometry(Part.LineSegment(V(47, -6.3, 0), V(44.2, -6.3, 0)), False)
sketch6.addGeometry(Part.LineSegment(V(44.2, -6.3, 0), V(44.2, 6.3, 0)), False)
sketch6.addGeometry(Part.LineSegment(V(44.2, 6.3, 0), V(47, 6.3, 0)), False)
sketch6.addGeometry(Part.LineSegment(V(47, 6.3, 0), V(47, -6.3, 0)), False)
sketch6.addGeometry(Part.LineSegment(V(70.1, -6.3, 0), V(67.3, -6.3, 0)), False)
sketch6.addGeometry(Part.LineSegment(V(67.3, -6.3, 0), V(67.3, 6.3, 0)), False)
sketch6.addGeometry(Part.LineSegment(V(67.3, 6.3, 0), V(70.1, 6.3, 0)), False)
sketch6.addGeometry(Part.LineSegment(V(70.1, 6.3, 0), V(70.1, -6.3, 0)), False)
sketch6.addConstraint(Sketcher.Constraint("Coincident", 0, 2, 1, 1))
sketch6.addConstraint(Sketcher.Constraint("Coincident", 1, 2, 2, 1))
sketch6.addConstraint(Sketcher.Constraint("Coincident", 2, 2, 3, 1))
sketch6.addConstraint(Sketcher.Constraint("Coincident", 3, 2, 0, 1))
sketch6.addConstraint(Sketcher.Constraint("Coincident", 4, 2, 5, 1))
sketch6.addConstraint(Sketcher.Constraint("Coincident", 5, 2, 6, 1))
sketch6.addConstraint(Sketcher.Constraint("Coincident", 6, 2, 7, 1))
sketch6.addConstraint(Sketcher.Constraint("Coincident", 7, 2, 4, 1))
sketch6.addConstraint(Sketcher.Constraint("Coincident", 8, 2, 9, 1))
sketch6.addConstraint(Sketcher.Constraint("Coincident", 9, 2, 10, 1))
sketch6.addConstraint(Sketcher.Constraint("Coincident", 10, 2, 11, 1))
sketch6.addConstraint(Sketcher.Constraint("Coincident", 11, 2, 8, 1))
sketch6.addConstraint(Sketcher.Constraint("Coincident", 12, 2, 13, 1))
sketch6.addConstraint(Sketcher.Constraint("Coincident", 13, 2, 14, 1))
sketch6.addConstraint(Sketcher.Constraint("Coincident", 14, 2, 15, 1))
sketch6.addConstraint(Sketcher.Constraint("Coincident", 15, 2, 12, 1))
sketch6.addConstraint(Sketcher.Constraint("Horizontal", 0))
sketch6.addConstraint(Sketcher.Constraint("Vertical", 1))
sketch6.addConstraint(Sketcher.Constraint("Horizontal", 2))
sketch6.addConstraint(Sketcher.Constraint("Vertical", 3))
sketch6.addConstraint(Sketcher.Constraint("Horizontal", 4))
sketch6.addConstraint(Sketcher.Constraint("Vertical", 5))
sketch6.addConstraint(Sketcher.Constraint("Horizontal", 6))
sketch6.addConstraint(Sketcher.Constraint("Vertical", 7))
sketch6.addConstraint(Sketcher.Constraint("Horizontal", 8))
sketch6.addConstraint(Sketcher.Constraint("Vertical", 9))
sketch6.addConstraint(Sketcher.Constraint("Horizontal", 10))
sketch6.addConstraint(Sketcher.Constraint("Vertical", 11))
sketch6.addConstraint(Sketcher.Constraint("Horizontal", 12))
sketch6.addConstraint(Sketcher.Constraint("Vertical", 13))
sketch6.addConstraint(Sketcher.Constraint("Horizontal", 14))
sketch6.addConstraint(Sketcher.Constraint("Vertical", 15))
sketch6.addConstraint(Sketcher.Constraint("Horizontal", 11, 2, 12, 2))
sketch6.addConstraint(Sketcher.Constraint("Horizontal", 10, 2, 13, 2))
sketch6.addConstraint(Sketcher.Constraint("Vertical", 1, 2, 4, 2))
sketch6.addConstraint(Sketcher.Constraint("Vertical", 3, 2, 6, 2))
sketch6.addConstraint(Sketcher.Constraint("Equal", 10, 12))
sketch6.addConstraint(Sketcher.Constraint("Equal", 14, 1))
sketch6.addConstraint(Sketcher.Constraint("Equal", 3, 5))
sketch6.addConstraint(Sketcher.Constraint("Equal", 6, 9))
sketch6.addConstraint(Sketcher.Constraint("DistanceX", 0, 2, 0, 1, Q("0.5 in")))
sketch6.addConstraint(Sketcher.Constraint("DistanceX", -1, 1, 0, 2, Q("2 in")))
sketch6.addConstraint(Sketcher.Constraint("DistanceX", 8, 2, 8, 1, Q("0.11 in")))
sketch6.addConstraint(Sketcher.Constraint("DistanceY", 1, 2, 4, 2, Q("1.7 in")))
sketch6.addConstraint(Sketcher.Constraint("DistanceX", 11, 2, 12, 2, Q("0.8 in")))
sketch6.addConstraint(Sketcher.Constraint("DistanceY", 8, 2, -1, 1, Q("0.25 in")))
sketch6.addConstraint(Sketcher.Constraint("DistanceX", 10, 2, 4, 2, Q("0.15 in")))
sketch6.addConstraint(Sketcher.Constraint("DistanceY", 1, 2, -1, 1, Q("0.835 in")))
pocket4 = doc.addObject("PartDesign::Pocket", "Pocket003")
body.addObject(pocket4)
pocket4.Profile = sketch6
pocket4.Length = Q("0.115 in")
pocket4.Reversed = True

doc.recompute()
